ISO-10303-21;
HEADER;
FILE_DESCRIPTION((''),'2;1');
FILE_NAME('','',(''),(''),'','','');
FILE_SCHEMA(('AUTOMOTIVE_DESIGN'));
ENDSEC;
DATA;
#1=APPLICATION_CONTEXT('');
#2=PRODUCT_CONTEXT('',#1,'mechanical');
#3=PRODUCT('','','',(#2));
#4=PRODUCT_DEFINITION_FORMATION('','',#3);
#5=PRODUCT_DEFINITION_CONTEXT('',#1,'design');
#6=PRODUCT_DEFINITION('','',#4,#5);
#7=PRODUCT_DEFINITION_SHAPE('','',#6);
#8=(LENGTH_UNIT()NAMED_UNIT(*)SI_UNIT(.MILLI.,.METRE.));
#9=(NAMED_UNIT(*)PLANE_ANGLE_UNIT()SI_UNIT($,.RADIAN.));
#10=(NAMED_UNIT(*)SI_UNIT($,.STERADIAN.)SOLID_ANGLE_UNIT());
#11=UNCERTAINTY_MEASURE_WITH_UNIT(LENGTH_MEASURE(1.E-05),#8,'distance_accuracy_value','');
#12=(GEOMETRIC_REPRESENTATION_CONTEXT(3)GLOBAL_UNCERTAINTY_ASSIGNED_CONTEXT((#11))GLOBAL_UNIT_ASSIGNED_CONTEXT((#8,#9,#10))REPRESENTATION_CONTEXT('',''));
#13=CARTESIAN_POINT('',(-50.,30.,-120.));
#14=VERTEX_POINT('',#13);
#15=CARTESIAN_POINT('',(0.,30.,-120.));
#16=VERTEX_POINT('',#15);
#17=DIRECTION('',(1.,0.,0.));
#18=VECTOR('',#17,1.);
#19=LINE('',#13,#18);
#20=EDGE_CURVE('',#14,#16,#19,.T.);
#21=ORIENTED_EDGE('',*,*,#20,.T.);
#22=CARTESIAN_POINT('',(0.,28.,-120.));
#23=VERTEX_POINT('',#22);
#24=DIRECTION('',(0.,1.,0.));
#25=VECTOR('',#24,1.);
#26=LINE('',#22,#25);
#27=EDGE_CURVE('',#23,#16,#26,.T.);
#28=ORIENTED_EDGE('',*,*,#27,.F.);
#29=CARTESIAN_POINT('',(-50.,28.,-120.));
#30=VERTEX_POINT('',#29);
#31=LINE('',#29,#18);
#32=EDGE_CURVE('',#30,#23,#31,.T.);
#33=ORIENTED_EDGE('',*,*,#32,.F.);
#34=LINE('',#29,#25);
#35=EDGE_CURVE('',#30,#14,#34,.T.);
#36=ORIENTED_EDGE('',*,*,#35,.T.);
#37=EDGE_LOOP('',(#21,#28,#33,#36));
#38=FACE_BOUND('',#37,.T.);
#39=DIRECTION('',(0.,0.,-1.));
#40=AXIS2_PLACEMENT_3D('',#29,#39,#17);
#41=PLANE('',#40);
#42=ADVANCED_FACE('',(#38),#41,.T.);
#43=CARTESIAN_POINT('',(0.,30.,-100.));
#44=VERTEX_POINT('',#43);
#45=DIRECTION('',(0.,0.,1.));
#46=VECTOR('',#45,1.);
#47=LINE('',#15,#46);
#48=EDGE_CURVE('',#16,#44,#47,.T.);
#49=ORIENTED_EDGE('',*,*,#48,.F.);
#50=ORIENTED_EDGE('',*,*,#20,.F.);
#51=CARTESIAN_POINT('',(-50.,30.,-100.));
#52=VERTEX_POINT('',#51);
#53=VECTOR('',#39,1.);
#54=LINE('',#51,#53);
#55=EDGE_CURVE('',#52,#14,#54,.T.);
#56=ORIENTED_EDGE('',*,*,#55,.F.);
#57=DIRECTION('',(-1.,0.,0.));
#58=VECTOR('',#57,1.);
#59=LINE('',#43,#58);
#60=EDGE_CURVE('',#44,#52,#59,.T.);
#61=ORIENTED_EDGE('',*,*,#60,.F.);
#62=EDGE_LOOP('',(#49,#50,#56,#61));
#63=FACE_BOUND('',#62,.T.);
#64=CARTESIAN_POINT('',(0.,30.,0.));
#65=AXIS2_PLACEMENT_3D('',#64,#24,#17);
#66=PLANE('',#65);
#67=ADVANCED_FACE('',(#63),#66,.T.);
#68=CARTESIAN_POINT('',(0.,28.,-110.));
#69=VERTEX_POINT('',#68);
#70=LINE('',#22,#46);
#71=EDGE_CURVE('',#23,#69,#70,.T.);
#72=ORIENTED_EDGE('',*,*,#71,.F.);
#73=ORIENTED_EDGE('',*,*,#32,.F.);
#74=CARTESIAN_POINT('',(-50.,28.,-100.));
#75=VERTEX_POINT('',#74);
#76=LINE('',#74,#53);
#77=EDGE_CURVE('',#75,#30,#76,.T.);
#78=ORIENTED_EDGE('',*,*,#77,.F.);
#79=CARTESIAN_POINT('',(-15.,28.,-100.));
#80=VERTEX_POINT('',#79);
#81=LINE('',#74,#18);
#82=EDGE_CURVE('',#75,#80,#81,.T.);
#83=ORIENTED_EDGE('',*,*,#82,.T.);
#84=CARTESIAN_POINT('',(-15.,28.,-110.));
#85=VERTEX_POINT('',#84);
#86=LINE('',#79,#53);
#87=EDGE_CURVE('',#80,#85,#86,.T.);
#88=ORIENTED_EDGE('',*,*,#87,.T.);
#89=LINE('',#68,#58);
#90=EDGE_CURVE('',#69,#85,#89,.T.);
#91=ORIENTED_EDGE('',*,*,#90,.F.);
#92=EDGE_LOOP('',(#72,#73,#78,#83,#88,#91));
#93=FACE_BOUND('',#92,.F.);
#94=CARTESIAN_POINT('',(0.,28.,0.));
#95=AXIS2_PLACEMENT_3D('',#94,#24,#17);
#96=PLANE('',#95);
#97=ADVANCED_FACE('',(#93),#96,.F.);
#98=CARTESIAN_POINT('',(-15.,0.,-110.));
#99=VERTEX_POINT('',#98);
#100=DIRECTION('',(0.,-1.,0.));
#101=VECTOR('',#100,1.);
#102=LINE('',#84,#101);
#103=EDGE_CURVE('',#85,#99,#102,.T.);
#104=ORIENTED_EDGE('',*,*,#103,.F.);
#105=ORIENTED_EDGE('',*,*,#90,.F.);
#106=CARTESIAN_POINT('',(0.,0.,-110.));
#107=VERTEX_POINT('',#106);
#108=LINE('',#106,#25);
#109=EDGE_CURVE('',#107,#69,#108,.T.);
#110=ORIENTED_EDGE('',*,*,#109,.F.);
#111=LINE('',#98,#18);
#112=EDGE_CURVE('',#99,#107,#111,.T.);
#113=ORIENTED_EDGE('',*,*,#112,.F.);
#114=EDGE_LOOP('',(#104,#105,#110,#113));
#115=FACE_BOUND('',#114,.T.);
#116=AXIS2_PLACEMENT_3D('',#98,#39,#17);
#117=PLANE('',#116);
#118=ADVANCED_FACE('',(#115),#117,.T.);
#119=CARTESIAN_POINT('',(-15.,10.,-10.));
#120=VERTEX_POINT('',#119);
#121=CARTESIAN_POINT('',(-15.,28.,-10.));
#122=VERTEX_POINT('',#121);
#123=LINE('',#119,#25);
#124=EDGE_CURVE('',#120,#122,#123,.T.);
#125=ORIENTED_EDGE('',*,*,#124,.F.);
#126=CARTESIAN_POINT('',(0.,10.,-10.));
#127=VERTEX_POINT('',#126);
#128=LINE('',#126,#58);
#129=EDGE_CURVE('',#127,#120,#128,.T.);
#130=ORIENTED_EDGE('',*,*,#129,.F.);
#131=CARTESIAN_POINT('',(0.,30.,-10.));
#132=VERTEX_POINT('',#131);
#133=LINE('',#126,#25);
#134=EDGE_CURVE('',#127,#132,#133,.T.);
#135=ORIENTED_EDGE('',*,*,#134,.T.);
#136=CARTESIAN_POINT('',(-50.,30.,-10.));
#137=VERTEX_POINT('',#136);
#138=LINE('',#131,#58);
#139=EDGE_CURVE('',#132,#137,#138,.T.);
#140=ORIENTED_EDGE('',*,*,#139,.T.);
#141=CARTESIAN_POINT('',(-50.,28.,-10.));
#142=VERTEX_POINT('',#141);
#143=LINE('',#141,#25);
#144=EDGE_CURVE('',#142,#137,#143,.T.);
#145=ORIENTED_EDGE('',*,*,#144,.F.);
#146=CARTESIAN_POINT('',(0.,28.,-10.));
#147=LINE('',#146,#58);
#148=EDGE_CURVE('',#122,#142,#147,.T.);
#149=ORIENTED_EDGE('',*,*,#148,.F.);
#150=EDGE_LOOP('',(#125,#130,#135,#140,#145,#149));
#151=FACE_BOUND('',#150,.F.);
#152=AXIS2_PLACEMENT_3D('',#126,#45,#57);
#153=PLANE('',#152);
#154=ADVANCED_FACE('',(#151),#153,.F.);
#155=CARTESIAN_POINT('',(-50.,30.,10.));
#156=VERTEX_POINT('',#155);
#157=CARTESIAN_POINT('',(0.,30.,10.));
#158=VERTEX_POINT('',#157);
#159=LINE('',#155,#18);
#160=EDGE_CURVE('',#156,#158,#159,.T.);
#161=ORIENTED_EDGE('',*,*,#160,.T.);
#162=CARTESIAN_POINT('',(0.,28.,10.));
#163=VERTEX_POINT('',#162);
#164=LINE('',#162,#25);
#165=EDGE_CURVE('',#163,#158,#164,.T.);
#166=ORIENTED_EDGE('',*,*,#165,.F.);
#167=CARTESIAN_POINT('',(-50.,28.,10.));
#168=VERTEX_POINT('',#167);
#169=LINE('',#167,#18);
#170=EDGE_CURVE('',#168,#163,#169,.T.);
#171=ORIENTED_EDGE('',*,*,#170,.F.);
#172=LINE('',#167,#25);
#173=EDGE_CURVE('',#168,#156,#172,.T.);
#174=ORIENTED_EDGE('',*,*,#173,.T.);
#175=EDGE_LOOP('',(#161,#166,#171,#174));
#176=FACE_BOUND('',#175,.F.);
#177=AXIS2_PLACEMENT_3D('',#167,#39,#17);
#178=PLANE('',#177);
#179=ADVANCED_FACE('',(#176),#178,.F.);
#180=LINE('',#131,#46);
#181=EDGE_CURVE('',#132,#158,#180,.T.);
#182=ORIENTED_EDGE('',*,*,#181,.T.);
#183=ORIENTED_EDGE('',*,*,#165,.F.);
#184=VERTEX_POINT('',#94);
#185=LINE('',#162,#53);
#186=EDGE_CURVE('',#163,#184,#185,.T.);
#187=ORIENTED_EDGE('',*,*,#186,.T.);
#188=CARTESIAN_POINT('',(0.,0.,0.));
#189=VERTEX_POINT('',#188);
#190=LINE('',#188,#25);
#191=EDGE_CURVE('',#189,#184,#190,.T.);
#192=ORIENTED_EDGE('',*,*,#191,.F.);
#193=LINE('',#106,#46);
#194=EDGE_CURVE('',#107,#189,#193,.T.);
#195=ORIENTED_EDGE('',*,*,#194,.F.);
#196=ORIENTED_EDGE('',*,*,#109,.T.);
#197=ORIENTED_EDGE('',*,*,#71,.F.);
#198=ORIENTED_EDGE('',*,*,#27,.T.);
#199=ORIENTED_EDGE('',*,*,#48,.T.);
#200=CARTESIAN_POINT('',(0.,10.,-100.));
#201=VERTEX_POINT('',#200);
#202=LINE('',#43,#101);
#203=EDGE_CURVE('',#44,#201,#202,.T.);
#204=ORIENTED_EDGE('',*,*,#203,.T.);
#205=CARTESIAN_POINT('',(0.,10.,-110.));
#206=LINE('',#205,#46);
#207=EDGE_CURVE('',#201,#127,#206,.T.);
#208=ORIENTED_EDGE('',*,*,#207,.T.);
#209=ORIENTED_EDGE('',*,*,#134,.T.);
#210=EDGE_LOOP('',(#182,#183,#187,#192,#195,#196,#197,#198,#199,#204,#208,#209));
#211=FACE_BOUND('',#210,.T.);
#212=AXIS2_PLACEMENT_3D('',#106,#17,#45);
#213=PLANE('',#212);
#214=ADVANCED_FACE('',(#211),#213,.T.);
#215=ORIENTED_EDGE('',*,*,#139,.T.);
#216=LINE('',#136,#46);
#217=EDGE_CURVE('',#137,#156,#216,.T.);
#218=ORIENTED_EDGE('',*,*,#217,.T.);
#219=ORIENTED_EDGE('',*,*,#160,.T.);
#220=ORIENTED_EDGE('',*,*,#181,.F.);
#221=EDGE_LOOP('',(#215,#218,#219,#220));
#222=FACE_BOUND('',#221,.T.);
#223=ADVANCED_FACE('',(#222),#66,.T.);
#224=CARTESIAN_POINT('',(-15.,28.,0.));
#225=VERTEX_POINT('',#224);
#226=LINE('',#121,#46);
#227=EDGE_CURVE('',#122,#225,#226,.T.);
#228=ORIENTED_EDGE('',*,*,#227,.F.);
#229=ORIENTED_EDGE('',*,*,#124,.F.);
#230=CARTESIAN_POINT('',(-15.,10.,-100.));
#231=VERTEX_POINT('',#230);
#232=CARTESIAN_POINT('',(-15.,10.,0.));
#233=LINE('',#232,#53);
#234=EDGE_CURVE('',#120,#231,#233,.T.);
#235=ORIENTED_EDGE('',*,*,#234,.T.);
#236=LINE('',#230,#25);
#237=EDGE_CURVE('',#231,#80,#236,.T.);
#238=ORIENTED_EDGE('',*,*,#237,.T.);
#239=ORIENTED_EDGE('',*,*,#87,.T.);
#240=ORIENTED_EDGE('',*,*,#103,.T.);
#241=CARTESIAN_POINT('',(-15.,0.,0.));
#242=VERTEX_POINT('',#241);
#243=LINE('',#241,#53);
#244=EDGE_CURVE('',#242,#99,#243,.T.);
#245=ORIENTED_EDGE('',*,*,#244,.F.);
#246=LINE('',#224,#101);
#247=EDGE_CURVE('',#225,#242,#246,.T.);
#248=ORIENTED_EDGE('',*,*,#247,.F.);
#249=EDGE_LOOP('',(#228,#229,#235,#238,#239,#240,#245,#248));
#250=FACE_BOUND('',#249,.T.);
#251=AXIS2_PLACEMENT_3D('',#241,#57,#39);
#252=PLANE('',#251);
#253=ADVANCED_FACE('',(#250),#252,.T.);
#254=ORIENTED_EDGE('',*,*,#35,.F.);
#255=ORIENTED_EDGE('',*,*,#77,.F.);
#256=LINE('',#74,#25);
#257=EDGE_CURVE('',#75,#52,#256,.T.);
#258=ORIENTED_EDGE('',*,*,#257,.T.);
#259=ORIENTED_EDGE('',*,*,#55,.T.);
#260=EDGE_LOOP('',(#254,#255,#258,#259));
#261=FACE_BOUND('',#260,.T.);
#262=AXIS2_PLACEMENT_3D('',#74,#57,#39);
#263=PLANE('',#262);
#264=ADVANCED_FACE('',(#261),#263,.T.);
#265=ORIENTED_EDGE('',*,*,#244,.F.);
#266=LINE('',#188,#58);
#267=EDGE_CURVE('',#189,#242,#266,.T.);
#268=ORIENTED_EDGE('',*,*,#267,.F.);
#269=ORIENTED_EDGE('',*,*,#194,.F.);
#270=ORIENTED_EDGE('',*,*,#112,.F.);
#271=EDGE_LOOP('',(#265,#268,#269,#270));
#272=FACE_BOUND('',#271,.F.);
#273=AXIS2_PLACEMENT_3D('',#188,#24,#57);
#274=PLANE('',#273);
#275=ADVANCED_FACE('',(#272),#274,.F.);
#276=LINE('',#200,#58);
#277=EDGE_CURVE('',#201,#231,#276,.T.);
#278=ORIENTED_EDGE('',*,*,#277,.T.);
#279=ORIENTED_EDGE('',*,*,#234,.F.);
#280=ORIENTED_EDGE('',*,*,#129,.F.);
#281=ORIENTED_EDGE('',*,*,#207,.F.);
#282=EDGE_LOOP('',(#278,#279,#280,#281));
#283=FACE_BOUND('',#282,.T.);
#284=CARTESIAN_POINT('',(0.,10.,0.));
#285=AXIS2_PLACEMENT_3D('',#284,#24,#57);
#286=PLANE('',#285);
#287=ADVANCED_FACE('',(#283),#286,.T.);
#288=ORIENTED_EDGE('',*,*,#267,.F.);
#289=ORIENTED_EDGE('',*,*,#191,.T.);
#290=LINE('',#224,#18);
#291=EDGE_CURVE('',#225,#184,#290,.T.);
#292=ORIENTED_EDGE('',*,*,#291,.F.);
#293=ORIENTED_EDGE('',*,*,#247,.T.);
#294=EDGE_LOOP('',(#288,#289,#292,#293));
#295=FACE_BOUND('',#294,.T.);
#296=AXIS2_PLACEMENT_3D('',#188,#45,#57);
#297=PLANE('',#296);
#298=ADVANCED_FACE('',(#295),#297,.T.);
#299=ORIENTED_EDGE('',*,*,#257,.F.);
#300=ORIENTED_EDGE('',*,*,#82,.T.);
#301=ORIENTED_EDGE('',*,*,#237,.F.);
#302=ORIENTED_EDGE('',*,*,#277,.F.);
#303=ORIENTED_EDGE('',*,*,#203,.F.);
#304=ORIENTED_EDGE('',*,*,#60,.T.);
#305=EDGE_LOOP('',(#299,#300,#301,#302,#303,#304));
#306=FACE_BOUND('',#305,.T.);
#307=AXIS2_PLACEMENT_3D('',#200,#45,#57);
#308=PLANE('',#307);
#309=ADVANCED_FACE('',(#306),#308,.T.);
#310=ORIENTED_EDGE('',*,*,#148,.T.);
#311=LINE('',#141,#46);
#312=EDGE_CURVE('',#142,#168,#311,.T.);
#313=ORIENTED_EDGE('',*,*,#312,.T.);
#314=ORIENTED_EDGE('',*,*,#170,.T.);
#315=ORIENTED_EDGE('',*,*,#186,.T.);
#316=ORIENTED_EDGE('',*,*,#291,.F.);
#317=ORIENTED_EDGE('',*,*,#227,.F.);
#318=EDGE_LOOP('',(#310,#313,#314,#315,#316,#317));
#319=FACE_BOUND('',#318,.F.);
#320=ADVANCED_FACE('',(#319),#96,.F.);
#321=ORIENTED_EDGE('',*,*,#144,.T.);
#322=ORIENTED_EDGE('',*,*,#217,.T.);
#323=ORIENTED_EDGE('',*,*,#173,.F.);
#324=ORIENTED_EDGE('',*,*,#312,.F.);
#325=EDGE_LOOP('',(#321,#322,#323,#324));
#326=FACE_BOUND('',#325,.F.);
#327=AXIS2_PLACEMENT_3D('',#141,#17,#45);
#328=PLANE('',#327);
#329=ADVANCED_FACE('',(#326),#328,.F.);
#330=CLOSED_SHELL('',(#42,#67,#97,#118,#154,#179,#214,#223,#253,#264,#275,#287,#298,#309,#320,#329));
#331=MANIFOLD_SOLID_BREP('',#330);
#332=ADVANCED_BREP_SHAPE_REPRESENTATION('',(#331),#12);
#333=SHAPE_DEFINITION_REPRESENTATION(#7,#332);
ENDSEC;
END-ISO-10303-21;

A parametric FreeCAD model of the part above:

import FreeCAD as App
import Part
import Sketcher
from FreeCAD import Vector
Q = App.Units.Quantity

doc = App.newDocument("Part")
body = doc.addObject("PartDesign::Body", "Body")

sketch1 = doc.addObject("Sketcher::SketchObject", "Sketch")
body.addObject(sketch1)
sketch1.AttachmentSupport = (doc.XZ_Plane, [""])
sketch1.MapMode = "FlatFace"
sketch1.addGeometry([
    Part.LineSegment(Vector(-15, 0, 0), Vector(0, 0, 0)),
    Part.LineSegment(Vector(0, 0, 0), Vector(0, -110, 0)),
    Part.LineSegment(Vector(0, -110, 0), Vector(-15, -110, 0)),
    Part.LineSegment(Vector(-15, -110, 0), Vector(-15, 0, 0)),
], False)
sketch1.addConstraint([
    Sketcher.Constraint("Coincident", 0, 2, 1, 1),
    Sketcher.Constraint("Coincident", 1, 2, 2, 1),
    Sketcher.Constraint("Coincident", 2, 2, 3, 1),
    Sketcher.Constraint("Coincident", 3, 2, 0, 1),
    Sketcher.Constraint("Horizontal", 0),
    Sketcher.Constraint("Vertical", 1),
    Sketcher.Constraint("Horizontal", 2),
    Sketcher.Constraint("Vertical", 3),
    Sketcher.Constraint("Coincident", 0, 2, -1, 1),
    Sketcher.Constraint("DistanceX", 0, 1, 0, 2, Q("15 mm")),
    Sketcher.Constraint("DistanceY", 1, 2, 1, 1, Q("110 mm")),
])
pad1 = doc.addObject("PartDesign::Pad", "Pad")
body.addObject(pad1)
pad1.Profile = sketch1
pad1.Length = 10
pad1.Reversed = True

sketch2 = doc.addObject("Sketcher::SketchObject", "Sketch001")
body.addObject(sketch2)
sketch2.AttachmentSupport = (doc.XZ_Plane, [""])
sketch2.MapMode = "FlatFace"
sketch2.AttachmentOffset = App.Placement(Vector(0, 0, -10), App.Rotation())
sketch2.addGeometry([
    Part.LineSegment(Vector(-15, -10, 0), Vector(-15, 0, 0)),
    Part.LineSegment(Vector(-15, 0, 0), Vector(0, 0, 0)),
    Part.LineSegment(Vector(0, 0, 0), Vector(0, -10, 0)),
    Part.LineSegment(Vector(0, -10, 0), Vector(-15, -10, 0)),
    Part.LineSegment(Vector(-15, -100, 0), Vector(0, -100, 0)),
    Part.LineSegment(Vector(0, -100, 0), Vector(0, -110, 0)),
    Part.LineSegment(Vector(0, -110, 0), Vector(-15, -110, 0)),
    Part.LineSegment(Vector(-15, -110, 0), Vector(-15, -100, 0)),
], False)
sketch2.addConstraint([
    Sketcher.Constraint("Coincident", 0, 2, 1, 1),
    Sketcher.Constraint("Coincident", 1, 2, 2, 1),
    Sketcher.Constraint("Coincident", 2, 2, 3, 1),
    Sketcher.Constraint("Coincident", 3, 2, 0, 1),
    Sketcher.Constraint("Coincident", 4, 2, 5, 1),
    Sketcher.Constraint("Coincident", 5, 2, 6, 1),
    Sketcher.Constraint("Coincident", 6, 2, 7, 1),
    Sketcher.Constraint("Coincident", 7, 2, 4, 1),
    Sketcher.Constraint("Vertical", 0),
    Sketcher.Constraint("Horizontal", 1),
    Sketcher.Constraint("Vertical", 2),
    Sketcher.Constraint("Horizontal", 3),
    Sketcher.Constraint("Horizontal", 4),
    Sketcher.Constraint("Vertical", 5),
    Sketcher.Constraint("Horizontal", 6),
    Sketcher.Constraint("Vertical", 7),
    Sketcher.Constraint("Coincident", 1, 2, -1, 1),
    Sketcher.Constraint("PointOnObject", 4, 2, -2),
    Sketcher.Constraint("Vertical", 3, 2, 6, 2),
    Sketcher.Constraint("Equal", 2, 5),
    Sketcher.Constraint("DistanceY", 0, 1, 0, 2, Q("10 mm")),
    Sketcher.Constraint("DistanceX", 1, 1, 1, 2, Q("15 mm")),
    Sketcher.Constraint("DistanceY", 4, 2, -1, 1, Q("100 mm")),
])
pad2 = doc.addObject("PartDesign::Pad", "Pad001")
body.addObject(pad2)
pad2.Profile = sketch2
pad2.Length = 18
pad2.Reversed = True

sketch3 = doc.addObject("Sketcher::SketchObject", "Sketch002")
body.addObject(sketch3)
sketch3.AttachmentSupport = (doc.XZ_Plane, [""])
sketch3.MapMode = "FlatFace"
sketch3.AttachmentOffset = App.Placement(Vector(0, 0, -28), App.Rotation())
sketch3.addGeometry([
    Part.LineSegment(Vector(0, 10, 0), Vector(0, -10, 0)),
    Part.LineSegment(Vector(0, -10, 0), Vector(-50, -10, 0)),
    Part.LineSegment(Vector(-50, -10, 0), Vector(-50, 10, 0)),
    Part.LineSegment(Vector(-50, 10, 0), Vector(0, 10, 0)),
    Part.LineSegment(Vector(-50, -100, 0), Vector(0, -100, 0)),
    Part.LineSegment(Vector(0, -100, 0), Vector(0, -120, 0)),
    Part.LineSegment(Vector(0, -120, 0), Vector(-50, -120, 0)),
    Part.LineSegment(Vector(-50, -120, 0), Vector(-50, -100, 0)),
], False)
sketch3.addConstraint([
    Sketcher.Constraint("Coincident", 0, 2, 1, 1),
    Sketcher.Constraint("Coincident", 1, 2, 2, 1),
    Sketcher.Constraint("Coincident", 2, 2, 3, 1),
    Sketcher.Constraint("Coincident", 3, 2, 0, 1),
    Sketcher.Constraint("Coincident", 4, 2, 5, 1),
    Sketcher.Constraint("Coincident", 5, 2, 6, 1),
    Sketcher.Constraint("Coincident", 6, 2, 7, 1),
    Sketcher.Constraint("Coincident", 7, 2, 4, 1),
    Sketcher.Constraint("Vertical", 0),
    Sketcher.Constraint("Horizontal", 1),
    Sketcher.Constraint("Vertical", 2),
    Sketcher.Constraint("Horizontal", 3),
    Sketcher.Constraint("Horizontal", 4),
    Sketcher.Constraint("Vertical", 5),
    Sketcher.Constraint("Horizontal", 6),
    Sketcher.Constraint("Vertical", 7),
    Sketcher.Constraint("Symmetric", 0, 2, 3, 2, -1, 1),
    Sketcher.Constraint("PointOnObject", 4, 2, -2),
    Sketcher.Constraint("Vertical", 2, 2, 6, 2),
    Sketcher.Constraint("Equal", 2, 5),
    Sketcher.Constraint("DistanceX", 1, 2, 1, 1, Q("50 mm")),
    Sketcher.Constraint("DistanceY", 0, 2, 0, 1, Q("20 mm")),
    Sketcher.Constraint("DistanceY", 4, 2, -1, 1, Q("100 mm")),
])
pad3 = doc.addObject("PartDesign::Pad", "Pad002")
body.addObject(pad3)
pad3.Profile = sketch3
pad3.Length = 2
pad3.Reversed = True

doc.recompute()
